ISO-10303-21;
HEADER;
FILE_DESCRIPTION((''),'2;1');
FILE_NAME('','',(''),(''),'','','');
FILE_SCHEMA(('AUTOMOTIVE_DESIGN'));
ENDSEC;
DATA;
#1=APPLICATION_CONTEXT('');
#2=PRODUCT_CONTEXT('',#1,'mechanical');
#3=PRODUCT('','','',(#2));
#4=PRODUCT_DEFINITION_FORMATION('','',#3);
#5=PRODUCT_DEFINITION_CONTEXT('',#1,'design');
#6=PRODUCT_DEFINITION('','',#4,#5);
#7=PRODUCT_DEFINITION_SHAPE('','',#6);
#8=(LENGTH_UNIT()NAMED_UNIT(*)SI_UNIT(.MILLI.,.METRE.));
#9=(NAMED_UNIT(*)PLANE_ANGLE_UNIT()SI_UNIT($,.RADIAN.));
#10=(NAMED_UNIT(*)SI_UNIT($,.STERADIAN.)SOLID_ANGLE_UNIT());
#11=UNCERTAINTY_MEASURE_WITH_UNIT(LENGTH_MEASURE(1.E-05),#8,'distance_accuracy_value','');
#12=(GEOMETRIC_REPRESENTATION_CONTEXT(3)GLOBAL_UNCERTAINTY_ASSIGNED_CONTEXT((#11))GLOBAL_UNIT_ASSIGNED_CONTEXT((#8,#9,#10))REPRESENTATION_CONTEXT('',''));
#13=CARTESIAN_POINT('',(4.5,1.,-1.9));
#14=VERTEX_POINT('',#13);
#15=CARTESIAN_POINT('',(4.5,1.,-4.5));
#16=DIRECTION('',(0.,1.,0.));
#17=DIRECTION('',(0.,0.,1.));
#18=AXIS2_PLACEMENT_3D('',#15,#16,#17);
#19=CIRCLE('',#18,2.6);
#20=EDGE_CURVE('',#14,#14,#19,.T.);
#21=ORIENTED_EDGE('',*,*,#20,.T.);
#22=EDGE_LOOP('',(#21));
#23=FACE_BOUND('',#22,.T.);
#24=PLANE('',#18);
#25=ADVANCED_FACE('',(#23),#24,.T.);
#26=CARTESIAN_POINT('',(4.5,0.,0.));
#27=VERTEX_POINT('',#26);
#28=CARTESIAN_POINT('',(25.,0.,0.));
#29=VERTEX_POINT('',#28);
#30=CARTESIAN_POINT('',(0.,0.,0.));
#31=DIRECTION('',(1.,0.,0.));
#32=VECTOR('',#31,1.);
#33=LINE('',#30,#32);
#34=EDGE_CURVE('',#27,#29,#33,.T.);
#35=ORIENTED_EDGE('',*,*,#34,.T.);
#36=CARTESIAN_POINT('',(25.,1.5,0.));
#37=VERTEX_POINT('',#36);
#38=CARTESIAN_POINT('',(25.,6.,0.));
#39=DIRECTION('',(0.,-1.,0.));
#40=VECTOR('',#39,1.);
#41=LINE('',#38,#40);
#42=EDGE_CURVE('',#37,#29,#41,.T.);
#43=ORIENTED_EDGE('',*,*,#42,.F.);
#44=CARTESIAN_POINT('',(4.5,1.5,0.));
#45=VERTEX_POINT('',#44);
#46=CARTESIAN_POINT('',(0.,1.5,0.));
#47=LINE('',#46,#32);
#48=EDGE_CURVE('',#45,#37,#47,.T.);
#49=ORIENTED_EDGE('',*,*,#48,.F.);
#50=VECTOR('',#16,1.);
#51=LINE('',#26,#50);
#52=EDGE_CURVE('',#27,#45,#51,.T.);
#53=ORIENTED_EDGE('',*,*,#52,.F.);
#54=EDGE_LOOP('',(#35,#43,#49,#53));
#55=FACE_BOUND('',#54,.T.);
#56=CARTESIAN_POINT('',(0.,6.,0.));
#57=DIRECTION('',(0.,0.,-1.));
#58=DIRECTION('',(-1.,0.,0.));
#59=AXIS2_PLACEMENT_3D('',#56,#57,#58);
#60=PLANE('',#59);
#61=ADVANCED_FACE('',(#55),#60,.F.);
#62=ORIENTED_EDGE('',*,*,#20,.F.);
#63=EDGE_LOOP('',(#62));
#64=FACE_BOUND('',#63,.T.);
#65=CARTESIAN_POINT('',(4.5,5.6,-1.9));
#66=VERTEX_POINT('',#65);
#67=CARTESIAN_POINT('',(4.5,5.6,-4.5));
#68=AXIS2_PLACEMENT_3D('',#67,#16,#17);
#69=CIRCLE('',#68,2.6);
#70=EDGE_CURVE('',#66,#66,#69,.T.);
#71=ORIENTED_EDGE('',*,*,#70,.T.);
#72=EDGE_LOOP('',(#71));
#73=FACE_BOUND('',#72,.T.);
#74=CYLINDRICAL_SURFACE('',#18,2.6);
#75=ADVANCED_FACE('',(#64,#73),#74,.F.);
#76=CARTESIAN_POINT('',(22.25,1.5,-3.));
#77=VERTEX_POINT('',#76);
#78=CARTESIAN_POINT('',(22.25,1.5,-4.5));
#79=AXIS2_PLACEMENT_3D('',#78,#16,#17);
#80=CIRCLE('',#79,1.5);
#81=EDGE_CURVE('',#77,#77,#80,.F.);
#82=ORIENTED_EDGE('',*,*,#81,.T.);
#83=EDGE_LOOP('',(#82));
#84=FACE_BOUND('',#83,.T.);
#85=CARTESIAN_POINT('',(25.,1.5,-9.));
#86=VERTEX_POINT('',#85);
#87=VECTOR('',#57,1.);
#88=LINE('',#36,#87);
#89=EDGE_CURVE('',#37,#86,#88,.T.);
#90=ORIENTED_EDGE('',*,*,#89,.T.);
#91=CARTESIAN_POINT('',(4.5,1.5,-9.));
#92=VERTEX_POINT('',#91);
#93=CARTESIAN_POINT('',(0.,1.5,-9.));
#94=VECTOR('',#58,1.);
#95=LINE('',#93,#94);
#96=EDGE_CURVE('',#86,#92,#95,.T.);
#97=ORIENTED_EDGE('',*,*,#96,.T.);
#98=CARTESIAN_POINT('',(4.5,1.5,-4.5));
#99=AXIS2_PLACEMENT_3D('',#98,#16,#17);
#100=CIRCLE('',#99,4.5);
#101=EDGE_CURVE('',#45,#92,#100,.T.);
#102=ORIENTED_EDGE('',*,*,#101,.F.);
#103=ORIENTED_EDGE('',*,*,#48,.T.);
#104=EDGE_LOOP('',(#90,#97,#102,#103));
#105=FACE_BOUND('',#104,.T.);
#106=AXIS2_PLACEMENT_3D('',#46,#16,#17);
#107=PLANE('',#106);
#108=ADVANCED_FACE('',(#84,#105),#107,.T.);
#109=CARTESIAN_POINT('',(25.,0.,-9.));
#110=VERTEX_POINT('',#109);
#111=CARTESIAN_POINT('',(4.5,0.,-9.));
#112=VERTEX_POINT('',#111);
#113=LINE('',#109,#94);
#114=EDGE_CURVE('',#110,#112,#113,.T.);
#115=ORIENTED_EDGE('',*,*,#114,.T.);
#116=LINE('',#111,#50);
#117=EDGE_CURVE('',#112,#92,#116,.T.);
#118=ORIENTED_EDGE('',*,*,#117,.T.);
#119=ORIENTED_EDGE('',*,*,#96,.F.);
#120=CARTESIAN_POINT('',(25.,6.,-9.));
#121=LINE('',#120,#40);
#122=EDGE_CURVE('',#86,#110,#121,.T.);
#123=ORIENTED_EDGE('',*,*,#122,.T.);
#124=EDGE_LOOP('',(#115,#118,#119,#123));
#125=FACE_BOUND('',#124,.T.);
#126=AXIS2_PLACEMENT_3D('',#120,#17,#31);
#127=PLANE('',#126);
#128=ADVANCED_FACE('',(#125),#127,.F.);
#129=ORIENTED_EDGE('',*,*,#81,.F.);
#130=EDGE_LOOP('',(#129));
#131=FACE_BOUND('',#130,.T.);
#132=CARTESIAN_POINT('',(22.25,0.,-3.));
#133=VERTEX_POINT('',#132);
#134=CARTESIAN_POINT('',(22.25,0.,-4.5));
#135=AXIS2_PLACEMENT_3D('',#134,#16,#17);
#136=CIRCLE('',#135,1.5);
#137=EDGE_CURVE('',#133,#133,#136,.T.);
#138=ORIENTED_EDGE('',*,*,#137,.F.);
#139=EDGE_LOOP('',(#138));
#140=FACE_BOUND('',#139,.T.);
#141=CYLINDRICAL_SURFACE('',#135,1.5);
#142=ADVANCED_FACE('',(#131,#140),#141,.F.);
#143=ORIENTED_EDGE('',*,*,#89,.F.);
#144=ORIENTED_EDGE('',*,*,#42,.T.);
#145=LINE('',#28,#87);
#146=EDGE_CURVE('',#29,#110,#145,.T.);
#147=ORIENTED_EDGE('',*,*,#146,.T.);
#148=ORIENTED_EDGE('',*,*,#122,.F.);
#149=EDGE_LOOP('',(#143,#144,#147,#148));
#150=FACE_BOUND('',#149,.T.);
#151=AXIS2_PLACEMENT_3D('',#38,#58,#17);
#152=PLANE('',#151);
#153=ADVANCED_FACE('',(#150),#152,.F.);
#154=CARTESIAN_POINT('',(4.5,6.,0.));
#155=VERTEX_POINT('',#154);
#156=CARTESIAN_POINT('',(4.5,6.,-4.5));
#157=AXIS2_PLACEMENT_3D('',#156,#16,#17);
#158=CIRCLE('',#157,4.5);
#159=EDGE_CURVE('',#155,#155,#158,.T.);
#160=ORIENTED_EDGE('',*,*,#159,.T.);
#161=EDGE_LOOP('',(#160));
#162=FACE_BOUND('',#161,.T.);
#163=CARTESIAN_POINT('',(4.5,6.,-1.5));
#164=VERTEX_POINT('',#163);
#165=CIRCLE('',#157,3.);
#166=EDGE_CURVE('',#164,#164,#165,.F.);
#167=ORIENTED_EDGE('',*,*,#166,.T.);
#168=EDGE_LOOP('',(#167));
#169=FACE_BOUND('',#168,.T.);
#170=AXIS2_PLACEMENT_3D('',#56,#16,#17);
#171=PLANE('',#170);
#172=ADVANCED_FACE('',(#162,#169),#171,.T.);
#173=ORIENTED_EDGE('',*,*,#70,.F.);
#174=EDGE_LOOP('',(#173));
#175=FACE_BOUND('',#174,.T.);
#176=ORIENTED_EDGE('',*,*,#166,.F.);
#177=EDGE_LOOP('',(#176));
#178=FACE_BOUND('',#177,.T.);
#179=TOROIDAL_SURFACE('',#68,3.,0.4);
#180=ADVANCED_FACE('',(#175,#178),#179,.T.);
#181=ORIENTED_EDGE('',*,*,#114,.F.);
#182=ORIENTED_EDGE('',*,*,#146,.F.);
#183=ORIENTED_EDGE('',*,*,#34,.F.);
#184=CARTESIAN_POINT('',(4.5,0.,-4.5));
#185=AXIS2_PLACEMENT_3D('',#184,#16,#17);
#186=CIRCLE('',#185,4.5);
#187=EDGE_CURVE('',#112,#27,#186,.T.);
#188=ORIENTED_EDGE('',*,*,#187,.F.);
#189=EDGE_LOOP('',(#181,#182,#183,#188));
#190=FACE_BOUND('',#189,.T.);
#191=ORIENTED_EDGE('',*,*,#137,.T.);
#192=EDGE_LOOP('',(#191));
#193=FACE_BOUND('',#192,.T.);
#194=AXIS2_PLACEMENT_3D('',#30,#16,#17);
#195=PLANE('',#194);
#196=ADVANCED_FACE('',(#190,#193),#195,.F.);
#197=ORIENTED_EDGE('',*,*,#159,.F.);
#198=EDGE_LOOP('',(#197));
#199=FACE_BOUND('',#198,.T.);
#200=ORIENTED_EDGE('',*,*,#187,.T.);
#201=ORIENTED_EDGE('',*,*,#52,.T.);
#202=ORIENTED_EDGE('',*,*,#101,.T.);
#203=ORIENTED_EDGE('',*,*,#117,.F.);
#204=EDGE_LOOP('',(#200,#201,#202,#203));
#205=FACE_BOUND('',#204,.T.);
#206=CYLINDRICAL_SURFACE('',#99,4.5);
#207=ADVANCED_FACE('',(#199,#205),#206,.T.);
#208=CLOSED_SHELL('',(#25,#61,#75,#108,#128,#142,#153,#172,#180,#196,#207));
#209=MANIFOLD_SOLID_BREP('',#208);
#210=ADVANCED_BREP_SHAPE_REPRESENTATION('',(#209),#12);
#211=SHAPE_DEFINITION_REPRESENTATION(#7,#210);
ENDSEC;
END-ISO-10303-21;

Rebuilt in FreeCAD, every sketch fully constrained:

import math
import FreeCAD as App
import Part
import Sketcher
from FreeCAD import Vector


def edges_at(feature, points):
    """Names of the edges that pass closest to the given points."""
    edges = feature.Shape.Edges
    near = lambda p: min(range(len(edges)), key=lambda i: edges[i].distToShape(Part.Vertex(*p))[0])
    return sorted({f"Edge{near(p) + 1}" for p in points})

doc = App.newDocument("Part")
params = doc.addObject("Spreadsheet::Sheet", "Params")
for row, (alias, value) in enumerate([
    ("sketch1_width", "25 mm"),
    ("sketch1_height", "9 mm"),
    ("pad1_length", "6 mm"),
    ("sketch2_diameter", "5.2 mm"),
    ("pocket1_length", "5 mm"),
    ("sketch3_diameter", "3 mm"),
    ("sketch4_diameter", "3 mm"),
    ("sketch4_radius", "4.5 mm"),
    ("sketch4_width", "20.5 mm"),
    ("pocket3_length", "4.5 mm"),
    ("sketch5_radius", "4.5 mm"),
    ("fillet_radius", "0.4 mm"),
], start=1):
    params.set(f"A{row}", alias)
    params.set(f"B{row}", "=" + value)
    params.setAlias(f"B{row}", alias)

body = doc.addObject("PartDesign::Body", "Body")

sketch1 = body.newObject("Sketcher::SketchObject", "Sketch")
sketch1.AttachmentSupport = (doc.getObject("XZ_Plane"), [""])
sketch1.MapMode = "FlatFace"
sketch1.addGeometry([
    Part.LineSegment(Vector(0, -9, 0), Vector(0, 0, 0)),
    Part.LineSegment(Vector(0, 0, 0), Vector(25, 0, 0)),
    Part.LineSegment(Vector(25, 0, 0), Vector(25, -9, 0)),
    Part.LineSegment(Vector(25, -9, 0), Vector(0, -9, 0)),
], False)
sketch1.addConstraint([
    Sketcher.Constraint("Coincident", 0, 2, 1, 1),
    Sketcher.Constraint("Coincident", 1, 2, 2, 1),
    Sketcher.Constraint("Coincident", 2, 2, 3, 1),
    Sketcher.Constraint("Coincident", 3, 2, 0, 1),
    Sketcher.Constraint("Vertical", 0),
    Sketcher.Constraint("Horizontal", 1),
    Sketcher.Constraint("Vertical", 2),
    Sketcher.Constraint("Horizontal", 3),
    Sketcher.Constraint("Coincident", 0, 2, -1, 1),
    Sketcher.Constraint("DistanceX", 1, 1, 1, 2, 25.0),
    Sketcher.Constraint("DistanceY", 0, 1, 0, 2, 9.0),
])
sketch1.setExpression("Constraints[9]", "Params.sketch1_width")
sketch1.setExpression("Constraints[10]", "Params.sketch1_height")
pad1 = body.newObject("PartDesign::Pad", "Pad")
pad1.Profile = sketch1
pad1.setExpression("Length", "Params.pad1_length")
pad1.Reversed = True

sketch2 = body.newObject("Sketcher::SketchObject", "Sketch001")
sketch2.AttachmentSupport = (doc.getObject("XZ_Plane"), [""])
sketch2.MapMode = "FlatFace"
sketch2.AttachmentOffset = App.Placement(Vector(0, 0, -6), App.Rotation())
sketch2.addGeometry(Part.Circle(Vector(4.5, -4.5, 0), Vector(0, 0, 1), 2.6), False)
sketch2.addConstraint([
    Sketcher.Constraint("Diameter", 0, 5.2),
    Sketcher.Constraint("DistanceX", -1, 1, 0, 3, 4.5),
    Sketcher.Constraint("DistanceY", 0, 3, -1, 1, 4.5),
])
sketch2.setExpression("Constraints[0]", "Params.sketch2_diameter")
pocket1 = body.newObject("PartDesign::Pocket", "Pocket")
pocket1.Profile = sketch2
pocket1.setExpression("Length", "Params.pocket1_length")
pocket1.Reversed = True

sketch3 = body.newObject("Sketcher::SketchObject", "Sketch002")
sketch3.AttachmentSupport = (doc.getObject("XZ_Plane"), [""])
sketch3.MapMode = "FlatFace"
sketch3.AttachmentOffset = App.Placement(Vector(0, 0, -6), App.Rotation())
sketch3.addGeometry(Part.Circle(Vector(22.2, -4.5, 0), Vector(0, 0, 1), 1.5), False)
sketch3.addConstraint([
    Sketcher.Constraint("Diameter", 0, 3.0),
    Sketcher.Constraint("DistanceY", 0, 3, -1, 1, 4.5),
    Sketcher.Constraint("DistanceX", -1, 1, 0, 3, 22.25),
])
sketch3.setExpression("Constraints[0]", "Params.sketch3_diameter")
pocket2 = body.newObject("PartDesign::Pocket", "Pocket001")
pocket2.Profile = sketch3
pocket2.Type = "ThroughAll"
pocket2.Midplane = True

sketch4 = body.newObject("Sketcher::SketchObject", "Sketch003")
sketch4.AttachmentSupport = (doc.getObject("XZ_Plane"), [""])
sketch4.MapMode = "FlatFace"
sketch4.AttachmentOffset = App.Placement(Vector(0, 0, -6), App.Rotation())
sketch4.addGeometry([
    Part.LineSegment(Vector(25, -9, 0), Vector(4.5, -9, 0)),
    Part.ArcOfCircle(Part.Circle(Vector(4.5, -4.5, 0), Vector(0, 0, 1), 4.5), math.radians(-90), math.radians(0)),
    Part.ArcOfCircle(Part.Circle(Vector(4.5, -4.5, 0), Vector(0, 0, 1), 4.5), math.radians(0), math.radians(90)),
    Part.LineSegment(Vector(4.5, 0, 0), Vector(25, 0, 0)),
    Part.LineSegment(Vector(25, 0, 0), Vector(25, -9, 0)),
    Part.Circle(Vector(22.2, -4.5, 0), Vector(0, 0, 1), 1.5),
], False)
sketch4.addConstraint([
    Sketcher.Constraint("Tangent", 0, 2, 1, 1),
    Sketcher.Constraint("Tangent", 1, 2, 2, 1),
    Sketcher.Constraint("Tangent", 2, 2, 3, 1),
    Sketcher.Constraint("Coincident", 3, 2, 4, 1),
    Sketcher.Constraint("Coincident", 4, 2, 0, 1),
    Sketcher.Constraint("Horizontal", 0),
    Sketcher.Constraint("Horizontal", 3),
    Sketcher.Constraint("Vertical", 4),
    Sketcher.Constraint("Equal", 1, 2),
    Sketcher.Constraint("PointOnObject", 2, 2, -1),
    Sketcher.Constraint("Horizontal", 2, 3, 5, 3),
    Sketcher.Constraint("Horizontal", 5, 3, 1, 2),
    Sketcher.Constraint("Diameter", 5, 3.0),
    Sketcher.Constraint("Radius", 1, 4.5),
    Sketcher.Constraint("DistanceX", 0, 2, 0, 1, 20.5),
    Sketcher.Constraint("DistanceX", -1, 1, 1, 2, 9.0),
    Sketcher.Constraint("DistanceX", -1, 1, 5, 3, 22.25),
])
sketch4.setExpression("Constraints[12]", "Params.sketch4_diameter")
sketch4.setExpression("Constraints[13]", "Params.sketch4_radius")
sketch4.setExpression("Constraints[14]", "Params.sketch4_width")
pocket3 = body.newObject("PartDesign::Pocket", "Pocket002")
pocket3.Profile = sketch4
pocket3.setExpression("Length", "Params.pocket3_length")
pocket3.Reversed = True

sketch5 = body.newObject("Sketcher::SketchObject", "Sketch004")
sketch5.AttachmentSupport = (doc.getObject("XZ_Plane"), [""])
sketch5.MapMode = "FlatFace"
sketch5.AttachmentOffset = App.Placement(Vector(0, 0, -6), App.Rotation())
sketch5.addGeometry([
    Part.ArcOfCircle(Part.Circle(Vector(4.5, -4.5, 0), Vector(0, 0, 1), 4.5), math.radians(-180), math.radians(-90)),
    Part.LineSegment(Vector(4.5, -9, 0), Vector(0, -9, 0)),
    Part.LineSegment(Vector(0, -9, 0), Vector(0, -4.5, 0)),
    Part.ArcOfCircle(Part.Circle(Vector(4.5, -4.5, 0), Vector(0, 0, 1), 4.5), math.radians(90), math.radians(180)),
    Part.LineSegment(Vector(0, -4.5, 0), Vector(0, 0, 0)),
    Part.LineSegment(Vector(0, 0, 0), Vector(4.5, 0, 0)),
], False)
sketch5.addConstraint([
    Sketcher.Constraint("Tangent", 0, 2, 1, 1),
    Sketcher.Constraint("Coincident", 1, 2, 2, 1),
    Sketcher.Constraint("Tangent", 2, 2, 0, 1),
    Sketcher.Constraint("Tangent", 3, 2, 4, 1),
    Sketcher.Constraint("Coincident", 4, 2, 5, 1),
    Sketcher.Constraint("Tangent", 5, 2, 3, 1),
    Sketcher.Constraint("Horizontal", 1),
    Sketcher.Constraint("Vertical", 2),
    Sketcher.Constraint("Vertical", 4),
    Sketcher.Constraint("Horizontal", 5),
    Sketcher.Constraint("Coincident", 4, 2, -1, 1),
    Sketcher.Constraint("Coincident", 3, 3, 0, 3),
    Sketcher.Constraint("Equal", 0, 3),
    Sketcher.Constraint("Radius", 0, 4.5),
])
sketch5.setExpression("Constraints[13]", "Params.sketch5_radius")
pocket4 = body.newObject("PartDesign::Pocket", "Pocket003")
pocket4.Profile = sketch5
pocket4.Type = "ThroughAll"
pocket4.Reversed = True
doc.recompute()

fillet = body.newObject("PartDesign::Fillet", "Fillet")
fillet.Base = (pocket4, edges_at(pocket4, [(4.5, 6, -7.1)]))
fillet.setExpression("Radius", "Params.fillet_radius")

doc.recompute()
